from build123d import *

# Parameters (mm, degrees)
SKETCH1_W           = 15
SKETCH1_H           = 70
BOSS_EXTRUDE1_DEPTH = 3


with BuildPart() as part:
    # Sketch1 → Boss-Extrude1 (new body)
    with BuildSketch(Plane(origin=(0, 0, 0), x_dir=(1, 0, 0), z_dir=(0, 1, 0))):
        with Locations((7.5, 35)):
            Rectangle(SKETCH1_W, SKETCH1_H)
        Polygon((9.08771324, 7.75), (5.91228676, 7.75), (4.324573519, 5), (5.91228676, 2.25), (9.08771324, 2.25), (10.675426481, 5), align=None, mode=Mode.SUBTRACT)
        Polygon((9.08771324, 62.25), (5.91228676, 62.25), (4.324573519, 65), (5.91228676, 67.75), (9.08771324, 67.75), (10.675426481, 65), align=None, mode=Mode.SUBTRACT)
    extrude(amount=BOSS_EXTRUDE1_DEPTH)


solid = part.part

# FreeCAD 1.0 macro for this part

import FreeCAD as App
import Part
import Sketcher

V = App.Vector
Q = App.Units.Quantity


def add_polygon(sketch, points):
    """Adds a closed chain of lines whose ends are joined by coincident constraints."""
    first, n = sketch.GeometryCount, len(points)
    for a, b in zip(points, points[1:] + points[:1]):
        sketch.addGeometry(Part.LineSegment(App.Vector(*a, 0), App.Vector(*b, 0)), False)
    for i in range(n):
        sketch.addConstraint(Sketcher.Constraint("Coincident", first + i, 2, first + (i + 1) % n, 1))

doc = App.newDocument("Part")
body = doc.addObject("PartDesign::Body", "Body")

sketch1 = doc.addObject("Sketcher::SketchObject", "Sketch")
body.addObject(sketch1)
sketch1.AttachmentSupport = (doc.XZ_Plane, [""])
sketch1.MapMode = "FlatFace"
add_polygon(sketch1, [(0, -70), (0, 0), (15, 0), (15, -70)])
add_polygon(sketch1, [(5.9, -7.8), (9.1, -7.8), (10.7, -5), (9.1, -2.2), (5.9, -2.2), (4.3, -5)])
add_polygon(sketch1, [(10.7, -65), (9.1, -62.2), (5.9, -62.2), (4.3, -65), (5.9, -67.8), (9.1, -67.8)])
sketch1.addConstraint(Sketcher.Constraint("Vertical", 0))
sketch1.addConstraint(Sketcher.Constraint("Horizontal", 1))
sketch1.addConstraint(Sketcher.Constraint("Vertical", 2))
sketch1.addConstraint(Sketcher.Constraint("Horizontal", 3))
sketch1.addConstraint(Sketcher.Constraint("Horizontal", 4))
sketch1.addConstraint(Sketcher.Constraint("Horizontal", 7))
sketch1.addConstraint(Sketcher.Constraint("Horizontal", 11))
sketch1.addConstraint(Sketcher.Constraint("Horizontal", 14))
sketch1.addConstraint(Sketcher.Constraint("Coincident", 0, 2, -1, 1))
sketch1.addConstraint(Sketcher.Constraint("Parallel", 5, 8))
sketch1.addConstraint(Sketcher.Constraint("Parallel", 6, 9))
sketch1.addConstraint(Sketcher.Constraint("Parallel", 9, 10))
sketch1.addConstraint(Sketcher.Constraint("Parallel", 8, 12))
sketch1.addConstraint(Sketcher.Constraint("Parallel", 10, 13))
sketch1.addConstraint(Sketcher.Constraint("Parallel", 12, 15))
sketch1.addConstraint(Sketcher.Constraint("Horizontal", 5, 2, 8, 2))
sketch1.addConstraint(Sketcher.Constraint("Horizontal", 12, 2, 15, 2))
sketch1.addConstraint(Sketcher.Constraint("Vertical", 4, 2, 6, 2))
sketch1.addConstraint(Sketcher.Constraint("Vertical", 7, 2, 9, 2))
sketch1.addConstraint(Sketcher.Constraint("Vertical", 6, 2, 10, 2))
sketch1.addConstraint(Sketcher.Constraint("Vertical", 9, 2, 11, 2))
sketch1.addConstraint(Sketcher.Constraint("Vertical", 8, 2, 12, 2))
sketch1.addConstraint(Sketcher.Constraint("Vertical", 11, 2, 13, 2))
sketch1.addConstraint(Sketcher.Constraint("DistanceX", 1, 1, 1, 2, Q("15 mm")))
sketch1.addConstraint(Sketcher.Constraint("DistanceY", 0, 1, 0, 2, Q("70 mm")))
sketch1.addConstraint(Sketcher.Constraint("Angle", 5, Q("60 deg")))
sketch1.addConstraint(Sketcher.Constraint("DistanceY", 5, 2, -1, 1, Q("5 mm")))
sketch1.addConstraint(Sketcher.Constraint("DistanceY", 12, 2, -1, 1, Q("65 mm")))
sketch1.addConstraint(Sketcher.Constraint("DistanceY", 4, 2, 6, 2, Q("5.5 mm")))
sketch1.addConstraint(Sketcher.Constraint("DistanceX", 4, 1, 4, 2, Q("3.175426 mm")))
sketch1.addConstraint(Sketcher.Constraint("DistanceX", -1, 1, 4, 2, Q("9.087713 mm")))
pad1 = doc.addObject("PartDesign::Pad", "Pad")
body.addObject(pad1)
pad1.Profile = sketch1
pad1.Length = 3
pad1.Reversed = True

doc.recompute()
